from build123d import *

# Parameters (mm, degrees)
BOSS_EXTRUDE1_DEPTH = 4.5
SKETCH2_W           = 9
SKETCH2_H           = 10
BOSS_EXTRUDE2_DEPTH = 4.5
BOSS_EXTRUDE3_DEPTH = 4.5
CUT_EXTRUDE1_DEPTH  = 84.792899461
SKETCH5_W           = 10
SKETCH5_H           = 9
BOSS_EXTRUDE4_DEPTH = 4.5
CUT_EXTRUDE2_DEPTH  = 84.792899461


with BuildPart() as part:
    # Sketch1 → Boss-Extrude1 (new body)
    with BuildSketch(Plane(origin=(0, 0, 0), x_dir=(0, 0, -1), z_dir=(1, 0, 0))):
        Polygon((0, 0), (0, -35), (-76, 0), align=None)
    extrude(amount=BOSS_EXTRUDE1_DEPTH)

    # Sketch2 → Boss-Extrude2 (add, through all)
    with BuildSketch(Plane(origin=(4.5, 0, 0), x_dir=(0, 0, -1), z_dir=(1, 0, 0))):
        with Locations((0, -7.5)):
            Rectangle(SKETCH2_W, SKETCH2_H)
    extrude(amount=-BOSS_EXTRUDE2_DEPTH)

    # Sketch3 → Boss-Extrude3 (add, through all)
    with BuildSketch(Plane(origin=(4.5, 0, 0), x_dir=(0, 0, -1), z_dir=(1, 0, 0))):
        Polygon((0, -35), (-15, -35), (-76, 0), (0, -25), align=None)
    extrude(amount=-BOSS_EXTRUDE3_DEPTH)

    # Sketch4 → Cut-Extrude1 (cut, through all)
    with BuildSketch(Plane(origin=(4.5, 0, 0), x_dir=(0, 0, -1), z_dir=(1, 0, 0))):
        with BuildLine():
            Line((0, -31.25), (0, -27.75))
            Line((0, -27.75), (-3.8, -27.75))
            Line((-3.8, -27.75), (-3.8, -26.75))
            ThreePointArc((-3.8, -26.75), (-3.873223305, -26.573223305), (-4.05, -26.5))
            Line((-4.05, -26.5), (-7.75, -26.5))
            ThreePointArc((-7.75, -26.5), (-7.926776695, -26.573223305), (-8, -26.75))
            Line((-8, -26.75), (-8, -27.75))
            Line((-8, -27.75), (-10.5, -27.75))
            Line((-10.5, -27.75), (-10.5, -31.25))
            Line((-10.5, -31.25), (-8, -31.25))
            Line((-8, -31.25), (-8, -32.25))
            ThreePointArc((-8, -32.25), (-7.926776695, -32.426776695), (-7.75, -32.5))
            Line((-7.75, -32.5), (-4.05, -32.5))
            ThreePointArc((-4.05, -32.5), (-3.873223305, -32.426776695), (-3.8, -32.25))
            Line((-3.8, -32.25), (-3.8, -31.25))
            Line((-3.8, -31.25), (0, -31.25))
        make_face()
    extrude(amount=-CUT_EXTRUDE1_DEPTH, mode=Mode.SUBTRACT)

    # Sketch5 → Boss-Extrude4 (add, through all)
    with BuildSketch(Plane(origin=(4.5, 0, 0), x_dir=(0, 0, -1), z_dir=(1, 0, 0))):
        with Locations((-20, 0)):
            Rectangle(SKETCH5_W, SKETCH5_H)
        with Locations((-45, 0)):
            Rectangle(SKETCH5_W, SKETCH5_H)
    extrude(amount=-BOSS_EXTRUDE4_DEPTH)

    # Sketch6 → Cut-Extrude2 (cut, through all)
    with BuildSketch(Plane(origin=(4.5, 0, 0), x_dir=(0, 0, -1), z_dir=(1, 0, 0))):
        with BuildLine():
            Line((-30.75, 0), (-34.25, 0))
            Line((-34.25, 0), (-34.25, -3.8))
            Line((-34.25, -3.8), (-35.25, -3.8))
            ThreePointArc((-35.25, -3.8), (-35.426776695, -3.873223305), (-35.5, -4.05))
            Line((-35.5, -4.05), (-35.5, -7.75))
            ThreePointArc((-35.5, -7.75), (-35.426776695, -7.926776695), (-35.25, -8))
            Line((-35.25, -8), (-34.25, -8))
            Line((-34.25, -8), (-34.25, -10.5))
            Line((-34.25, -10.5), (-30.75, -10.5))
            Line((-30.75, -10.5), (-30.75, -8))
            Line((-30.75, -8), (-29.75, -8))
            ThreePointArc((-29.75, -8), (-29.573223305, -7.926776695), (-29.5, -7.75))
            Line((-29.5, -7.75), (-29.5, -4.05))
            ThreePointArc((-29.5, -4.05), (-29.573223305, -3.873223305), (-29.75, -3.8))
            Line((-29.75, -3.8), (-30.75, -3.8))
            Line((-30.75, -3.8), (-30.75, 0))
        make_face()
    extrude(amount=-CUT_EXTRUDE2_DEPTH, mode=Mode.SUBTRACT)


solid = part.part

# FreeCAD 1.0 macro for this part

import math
import FreeCAD as App
import Part
import Sketcher

V = App.Vector
Q = App.Units.Quantity

doc = App.newDocument("Part")
body = doc.addObject("PartDesign::Body", "Body")

# Sketch on YZ plane
sketch1 = body.newObject("Sketcher::SketchObject", "Sketch")
sketch1.AttachmentSupport = (doc.getObject("YZ_Plane"), [""])
sketch1.MapMode = "FlatFace"
sketch1.addGeometry([
    Part.LineSegment(V(-35, 0, 0), V(0, 0, 0)),
    Part.LineSegment(V(0, 0, 0), V(0, 76, 0)),
    Part.LineSegment(V(0, 76, 0), V(-35, 0, 0)),
], False)
sketch1.addConstraint([
    Sketcher.Constraint("Coincident", 0, 2, 1, 1),
    Sketcher.Constraint("Coincident", 1, 2, 2, 1),
    Sketcher.Constraint("Coincident", 2, 2, 0, 1),
    Sketcher.Constraint("Horizontal", 0),
    Sketcher.Constraint("Vertical", 1),
    Sketcher.Constraint("Coincident", 0, 2, -1, 1),
    Sketcher.Constraint("DistanceX", 0, 1, 0, 2, Q("35 mm")),
    Sketcher.Constraint("DistanceY", 1, 1, 1, 2, Q("76 mm")),
])
pad1 = body.newObject("PartDesign::Pad", "Pad")
pad1.Profile = sketch1
pad1.Length = 4.5

# Sketch on YZ plane
sketch2 = body.newObject("Sketcher::SketchObject", "Sketch001")
sketch2.AttachmentSupport = (doc.getObject("YZ_Plane"), [""])
sketch2.MapMode = "FlatFace"
sketch2.AttachmentOffset = App.Placement(V(0, 0, 4.5), App.Rotation())
sketch2.addGeometry([
    Part.LineSegment(V(-2, 4, 0), V(-12, 4, 0)),
    Part.LineSegment(V(-12, 4, 0), V(-12, -4, 0)),
    Part.LineSegment(V(-12, -4, 0), V(-2, -4, 0)),
    Part.LineSegment(V(-2, -4, 0), V(-2, 4, 0)),
], False)
sketch2.addConstraint([
    Sketcher.Constraint("Coincident", 0, 2, 1, 1),
    Sketcher.Constraint("Coincident", 1, 2, 2, 1),
    Sketcher.Constraint("Coincident", 2, 2, 3, 1),
    Sketcher.Constraint("Coincident", 3, 2, 0, 1),
    Sketcher.Constraint("Horizontal", 0),
    Sketcher.Constraint("Vertical", 1),
    Sketcher.Constraint("Horizontal", 2),
    Sketcher.Constraint("Vertical", 3),
    Sketcher.Constraint("DistanceX", 0, 2, 0, 1, Q("10 mm")),
    Sketcher.Constraint("DistanceY", 1, 2, 1, 1, Q("9 mm")),
    Sketcher.Constraint("DistanceX", 0, 2, -1, 1, Q("12.5 mm")),
    Sketcher.Constraint("DistanceY", -1, 1, 0, 2, Q("4.5 mm")),
])
pad2 = body.newObject("PartDesign::Pad", "Pad001")
pad2.Profile = sketch2
pad2.Type = "UpToLast"
pad2.Reversed = True

# Sketch on YZ plane
sketch3 = body.newObject("Sketcher::SketchObject", "Sketch002")
sketch3.AttachmentSupport = (doc.getObject("YZ_Plane"), [""])
sketch3.MapMode = "FlatFace"
sketch3.AttachmentOffset = App.Placement(V(0, 0, 4.5), App.Rotation())
sketch3.addGeometry([
    Part.LineSegment(V(-35, 15, 0), V(-35, 0, 0)),
    Part.LineSegment(V(-35, 0, 0), V(-25, 0, 0)),
    Part.LineSegment(V(-25, 0, 0), V(0, 76, 0)),
    Part.LineSegment(V(0, 76, 0), V(-35, 15, 0)),
], False)
sketch3.addConstraint([
    Sketcher.Constraint("Coincident", 0, 2, 1, 1),
    Sketcher.Constraint("Coincident", 1, 2, 2, 1),
    Sketcher.Constraint("Coincident", 2, 2, 3, 1),
    Sketcher.Constraint("Coincident", 3, 2, 0, 1),
    Sketcher.Constraint("Vertical", 0),
    Sketcher.Constraint("Horizontal", 1),
    Sketcher.Constraint("PointOnObject", 0, 2, -1),
    Sketcher.Constraint("PointOnObject", 2, 2, -2),
    Sketcher.Constraint("DistanceX", 1, 1, 1, 2, Q("10 mm")),
    Sketcher.Constraint("DistanceY", 0, 2, 0, 1, Q("15 mm")),
    Sketcher.Constraint("DistanceX", 0, 2, -1, 1, Q("35 mm")),
    Sketcher.Constraint("DistanceY", -1, 1, 2, 2, Q("76 mm")),
])
pad3 = body.newObject("PartDesign::Pad", "Pad002")
pad3.Profile = sketch3
pad3.Type = "UpToLast"
pad3.Reversed = True

# Sketch on YZ plane
sketch4 = body.newObject("Sketcher::SketchObject", "Sketch003")
sketch4.AttachmentSupport = (doc.getObject("YZ_Plane"), [""])
sketch4.MapMode = "FlatFace"
sketch4.AttachmentOffset = App.Placement(V(0, 0, 4.5), App.Rotation())
sketch4.addGeometry([
    Part.LineSegment(V(-31.25, 0, 0), V(-27.75, 0, 0)),  # 0
    Part.LineSegment(V(-27.75, 0, 0), V(-27.75, 3.8, 0)),  # 1
    Part.LineSegment(V(-27.75, 3.8, 0), V(-26.75, 3.8, 0)),  # 2
    Part.ArcOfCircle(Part.Circle(V(-26.75, 4.05, 0), V(0, 0, 1), 0.25), math.radians(-90), math.radians(0)),  # 3
    Part.LineSegment(V(-26.5, 4.05, 0), V(-26.5, 7.75, 0)),  # 4
    Part.ArcOfCircle(Part.Circle(V(-26.75, 7.75, 0), V(0, 0, 1), 0.25), math.radians(0), math.radians(90)),  # 5
    Part.LineSegment(V(-26.75, 8, 0), V(-27.75, 8, 0)),  # 6
    Part.LineSegment(V(-27.75, 8, 0), V(-27.75, 10.5, 0)),  # 7
    Part.LineSegment(V(-27.75, 10.5, 0), V(-31.25, 10.5, 0)),  # 8
    Part.LineSegment(V(-31.25, 10.5, 0), V(-31.25, 8, 0)),  # 9
    Part.LineSegment(V(-31.25, 8, 0), V(-32.25, 8, 0)),  # 10
    Part.ArcOfCircle(Part.Circle(V(-32.25, 7.75, 0), V(0, 0, 1), 0.25), math.radians(90), math.radians(180)),  # 11
    Part.LineSegment(V(-32.5, 7.75, 0), V(-32.5, 4.05, 0)),  # 12
    Part.ArcOfCircle(Part.Circle(V(-32.25, 4.05, 0), V(0, 0, 1), 0.25), math.radians(-180), math.radians(-90)),  # 13
    Part.LineSegment(V(-32.25, 3.8, 0), V(-31.25, 3.8, 0)),  # 14
    Part.LineSegment(V(-31.25, 3.8, 0), V(-31.25, 0, 0)),  # 15
], False)
sketch4.addConstraint([
    Sketcher.Constraint("Coincident", 0, 2, 1, 1),
    Sketcher.Constraint("Coincident", 1, 2, 2, 1),
    Sketcher.Constraint("Tangent", 2, 2, 3, 1),
    Sketcher.Constraint("Tangent", 3, 2, 4, 1),
    Sketcher.Constraint("Tangent", 4, 2, 5, 1),
    Sketcher.Constraint("Tangent", 5, 2, 6, 1),
    Sketcher.Constraint("Coincident", 6, 2, 7, 1),
    Sketcher.Constraint("Coincident", 7, 2, 8, 1),
    Sketcher.Constraint("Coincident", 8, 2, 9, 1),
    Sketcher.Constraint("Coincident", 9, 2, 10, 1),
    Sketcher.Constraint("Tangent", 10, 2, 11, 1),
    Sketcher.Constraint("Tangent", 11, 2, 12, 1),
    Sketcher.Constraint("Tangent", 12, 2, 13, 1),
    Sketcher.Constraint("Tangent", 13, 2, 14, 1),
    Sketcher.Constraint("Coincident", 14, 2, 15, 1),
    Sketcher.Constraint("Coincident", 15, 2, 0, 1),
    Sketcher.Constraint("Horizontal", 0),
    Sketcher.Constraint("Vertical", 1),
    Sketcher.Constraint("Horizontal", 2),
    Sketcher.Constraint("Vertical", 4),
    Sketcher.Constraint("Horizontal", 6),
    Sketcher.Constraint("Vertical", 7),
    Sketcher.Constraint("Horizontal", 8),
    Sketcher.Constraint("Vertical", 9),
    Sketcher.Constraint("Horizontal", 10),
    Sketcher.Constraint("Vertical", 12),
    Sketcher.Constraint("Horizontal", 14),
    Sketcher.Constraint("Vertical", 15),
    Sketcher.Constraint("Equal", 3, 5),
    Sketcher.Constraint("Equal", 5, 11),
    Sketcher.Constraint("Equal", 11, 13),
    Sketcher.Constraint("PointOnObject", 0, 2, -1),
    Sketcher.Constraint("Horizontal", 5, 3, 11, 3),
    Sketcher.Constraint("Horizontal", 3, 3, 13, 3),
    Sketcher.Constraint("Vertical", 1, 2, 6, 2),
    Sketcher.Constraint("Vertical", 9, 2, 14, 2),
    Sketcher.Constraint("Equal", 6, 10),
    Sketcher.Constraint("DistanceX", 2, 1, 2, 2, Q("1 mm")),
    Sketcher.Constraint("Radius", 3, Q("0.25 mm")),
    Sketcher.Constraint("DistanceX", 0, 1, 0, 2, Q("3.5 mm")),
    Sketcher.Constraint("DistanceY", 1, 1, 1, 2, Q("3.8 mm")),
    Sketcher.Constraint("DistanceY", 4, 1, 4, 2, Q("3.7 mm")),
    Sketcher.Constraint("DistanceY", 7, 1, 7, 2, Q("2.5 mm")),
    Sketcher.Constraint("DistanceX", 3, 2, -1, 1, Q("26.5 mm")),
])
pocket1 = body.newObject("PartDesign::Pocket", "Pocket")
pocket1.Profile = sketch4
pocket1.Type = "ThroughAll"

# Sketch on YZ plane
sketch5 = body.newObject("Sketcher::SketchObject", "Sketch004")
sketch5.AttachmentSupport = (doc.getObject("YZ_Plane"), [""])
sketch5.MapMode = "FlatFace"
sketch5.AttachmentOffset = App.Placement(V(0, 0, 4.5), App.Rotation())
sketch5.addGeometry([
    Part.LineSegment(V(4, 25, 0), V(-4, 25, 0)),  # 0
    Part.LineSegment(V(-4, 25, 0), V(-4, 15, 0)),  # 1
    Part.LineSegment(V(-4, 15, 0), V(4, 15, 0)),  # 2
    Part.LineSegment(V(4, 15, 0), V(4, 25, 0)),  # 3
    Part.LineSegment(V(4, 50, 0), V(-4, 50, 0)),  # 4
    Part.LineSegment(V(-4, 50, 0), V(-4, 40, 0)),  # 5
    Part.LineSegment(V(-4, 40, 0), V(4, 40, 0)),  # 6
    Part.LineSegment(V(4, 40, 0), V(4, 50, 0)),  # 7
], False)
sketch5.addConstraint([
    Sketcher.Constraint("Coincident", 0, 2, 1, 1),
    Sketcher.Constraint("Coincident", 1, 2, 2, 1),
    Sketcher.Constraint("Coincident", 2, 2, 3, 1),
    Sketcher.Constraint("Coincident", 3, 2, 0, 1),
    Sketcher.Constraint("Coincident", 4, 2, 5, 1),
    Sketcher.Constraint("Coincident", 5, 2, 6, 1),
    Sketcher.Constraint("Coincident", 6, 2, 7, 1),
    Sketcher.Constraint("Coincident", 7, 2, 4, 1),
    Sketcher.Constraint("Horizontal", 0),
    Sketcher.Constraint("Vertical", 1),
    Sketcher.Constraint("Horizontal", 2),
    Sketcher.Constraint("Vertical", 3),
    Sketcher.Constraint("Horizontal", 4),
    Sketcher.Constraint("Vertical", 5),
    Sketcher.Constraint("Horizontal", 6),
    Sketcher.Constraint("Vertical", 7),
    Sketcher.Constraint("Vertical", 1, 2, 4, 2),
    Sketcher.Constraint("Vertical", 3, 2, 6, 2),
    Sketcher.Constraint("Equal", 3, 5),
    Sketcher.Constraint("DistanceX", 0, 2, 0, 1, Q("9 mm")),
    Sketcher.Constraint("DistanceY", 1, 2, 1, 1, Q("10 mm")),
    Sketcher.Constraint("DistanceY", -1, 1, 0, 2, Q("25 mm")),
    Sketcher.Constraint("DistanceY", -1, 1, 4, 2, Q("50 mm")),
    Sketcher.Constraint("DistanceX", 0, 2, -1, 1, Q("4.5 mm")),
])
pad4 = body.newObject("PartDesign::Pad", "Pad003")
pad4.Profile = sketch5
pad4.Type = "UpToLast"
pad4.Reversed = True

# Sketch on YZ plane
sketch6 = body.newObject("Sketcher::SketchObject", "Sketch005")
sketch6.AttachmentSupport = (doc.getObject("YZ_Plane"), [""])
sketch6.MapMode = "FlatFace"
sketch6.AttachmentOffset = App.Placement(V(0, 0, 4.5), App.Rotation())
sketch6.addGeometry([
    Part.LineSegment(V(0, 30.75, 0), V(0, 34.25, 0)),  # 0
    Part.LineSegment(V(0, 34.25, 0), V(-3.8, 34.25, 0)),  # 1
    Part.LineSegment(V(-3.8, 34.25, 0), V(-3.8, 35.25, 0)),  # 2
    Part.ArcOfCircle(Part.Circle(V(-4.05, 35.25, 0), V(0, 0, 1), 0.25), math.radians(0), math.radians(90)),  # 3
    Part.LineSegment(V(-4.05, 35.5, 0), V(-7.75, 35.5, 0)),  # 4
    Part.ArcOfCircle(Part.Circle(V(-7.75, 35.25, 0), V(0, 0, 1), 0.25), math.radians(90), math.radians(180)),  # 5
    Part.LineSegment(V(-8, 35.25, 0), V(-8, 34.25, 0)),  # 6
    Part.LineSegment(V(-8, 34.25, 0), V(-10.5, 34.25, 0)),  # 7
    Part.LineSegment(V(-10.5, 34.25, 0), V(-10.5, 30.75, 0)),  # 8
    Part.LineSegment(V(-10.5, 30.75, 0), V(-8, 30.75, 0)),  # 9
    Part.LineSegment(V(-8, 30.75, 0), V(-8, 29.75, 0)),  # 10
    Part.ArcOfCircle(Part.Circle(V(-7.75, 29.75, 0), V(0, 0, 1), 0.25), math.radians(-180), math.radians(-90)),  # 11
    Part.LineSegment(V(-7.75, 29.5, 0), V(-4.05, 29.5, 0)),  # 12
    Part.ArcOfCircle(Part.Circle(V(-4.05, 29.75, 0), V(0, 0, 1), 0.25), math.radians(-90), math.radians(0)),  # 13
    Part.LineSegment(V(-3.8, 29.75, 0), V(-3.8, 30.75, 0)),  # 14
    Part.LineSegment(V(-3.8, 30.75, 0), V(0, 30.75, 0)),  # 15
], False)
sketch6.addConstraint([
    Sketcher.Constraint("Coincident", 0, 2, 1, 1),
    Sketcher.Constraint("Coincident", 1, 2, 2, 1),
    Sketcher.Constraint("Tangent", 2, 2, 3, 1),
    Sketcher.Constraint("Tangent", 3, 2, 4, 1),
    Sketcher.Constraint("Tangent", 4, 2, 5, 1),
    Sketcher.Constraint("Tangent", 5, 2, 6, 1),
    Sketcher.Constraint("Coincident", 6, 2, 7, 1),
    Sketcher.Constraint("Coincident", 7, 2, 8, 1),
    Sketcher.Constraint("Coincident", 8, 2, 9, 1),
    Sketcher.Constraint("Coincident", 9, 2, 10, 1),
    Sketcher.Constraint("Tangent", 10, 2, 11, 1),
    Sketcher.Constraint("Tangent", 11, 2, 12, 1),
    Sketcher.Constraint("Tangent", 12, 2, 13, 1),
    Sketcher.Constraint("Tangent", 13, 2, 14, 1),
    Sketcher.Constraint("Coincident", 14, 2, 15, 1),
    Sketcher.Constraint("Coincident", 15, 2, 0, 1),
    Sketcher.Constraint("Vertical", 0),
    Sketcher.Constraint("Horizontal", 1),
    Sketcher.Constraint("Vertical", 2),
    Sketcher.Constraint("Horizontal", 4),
    Sketcher.Constraint("Vertical", 6),
    Sketcher.Constraint("Horizontal", 7),
    Sketcher.Constraint("Vertical", 8),
    Sketcher.Constraint("Horizontal", 9),
    Sketcher.Constraint("Vertical", 10),
    Sketcher.Constraint("Horizontal", 12),
    Sketcher.Constraint("Vertical", 14),
    Sketcher.Constraint("Horizontal", 15),
    Sketcher.Constraint("Equal", 3, 5),
    Sketcher.Constraint("Equal", 5, 11),
    Sketcher.Constraint("Equal", 11, 13),
    Sketcher.Constraint("PointOnObject", 0, 2, -2),
    Sketcher.Constraint("Horizontal", 1, 2, 6, 2),
    Sketcher.Constraint("Horizontal", 9, 2, 14, 2),
    Sketcher.Constraint("Vertical", 5, 3, 11, 3),
    Sketcher.Constraint("Vertical", 3, 3, 13, 3),
    Sketcher.Constraint("Equal", 6, 10),
    Sketcher.Constraint("DistanceY", 2, 1, 2, 2, Q("1 mm")),
    Sketcher.Constraint("Radius", 3, Q("0.25 mm")),
    Sketcher.Constraint("DistanceX", 1, 2, 1, 1, Q("3.8 mm")),
    Sketcher.Constraint("DistanceX", 4, 2, 4, 1, Q("3.7 mm")),
    Sketcher.Constraint("DistanceX", 7, 2, 7, 1, Q("2.5 mm")),
    Sketcher.Constraint("DistanceY", 0, 1, 0, 2, Q("3.5 mm")),
    Sketcher.Constraint("DistanceY", -1, 1, 3, 2, Q("35.5 mm")),
])
pocket2 = body.newObject("PartDesign::Pocket", "Pocket001")
pocket2.Profile = sketch6
pocket2.Type = "ThroughAll"

doc.recompute()
